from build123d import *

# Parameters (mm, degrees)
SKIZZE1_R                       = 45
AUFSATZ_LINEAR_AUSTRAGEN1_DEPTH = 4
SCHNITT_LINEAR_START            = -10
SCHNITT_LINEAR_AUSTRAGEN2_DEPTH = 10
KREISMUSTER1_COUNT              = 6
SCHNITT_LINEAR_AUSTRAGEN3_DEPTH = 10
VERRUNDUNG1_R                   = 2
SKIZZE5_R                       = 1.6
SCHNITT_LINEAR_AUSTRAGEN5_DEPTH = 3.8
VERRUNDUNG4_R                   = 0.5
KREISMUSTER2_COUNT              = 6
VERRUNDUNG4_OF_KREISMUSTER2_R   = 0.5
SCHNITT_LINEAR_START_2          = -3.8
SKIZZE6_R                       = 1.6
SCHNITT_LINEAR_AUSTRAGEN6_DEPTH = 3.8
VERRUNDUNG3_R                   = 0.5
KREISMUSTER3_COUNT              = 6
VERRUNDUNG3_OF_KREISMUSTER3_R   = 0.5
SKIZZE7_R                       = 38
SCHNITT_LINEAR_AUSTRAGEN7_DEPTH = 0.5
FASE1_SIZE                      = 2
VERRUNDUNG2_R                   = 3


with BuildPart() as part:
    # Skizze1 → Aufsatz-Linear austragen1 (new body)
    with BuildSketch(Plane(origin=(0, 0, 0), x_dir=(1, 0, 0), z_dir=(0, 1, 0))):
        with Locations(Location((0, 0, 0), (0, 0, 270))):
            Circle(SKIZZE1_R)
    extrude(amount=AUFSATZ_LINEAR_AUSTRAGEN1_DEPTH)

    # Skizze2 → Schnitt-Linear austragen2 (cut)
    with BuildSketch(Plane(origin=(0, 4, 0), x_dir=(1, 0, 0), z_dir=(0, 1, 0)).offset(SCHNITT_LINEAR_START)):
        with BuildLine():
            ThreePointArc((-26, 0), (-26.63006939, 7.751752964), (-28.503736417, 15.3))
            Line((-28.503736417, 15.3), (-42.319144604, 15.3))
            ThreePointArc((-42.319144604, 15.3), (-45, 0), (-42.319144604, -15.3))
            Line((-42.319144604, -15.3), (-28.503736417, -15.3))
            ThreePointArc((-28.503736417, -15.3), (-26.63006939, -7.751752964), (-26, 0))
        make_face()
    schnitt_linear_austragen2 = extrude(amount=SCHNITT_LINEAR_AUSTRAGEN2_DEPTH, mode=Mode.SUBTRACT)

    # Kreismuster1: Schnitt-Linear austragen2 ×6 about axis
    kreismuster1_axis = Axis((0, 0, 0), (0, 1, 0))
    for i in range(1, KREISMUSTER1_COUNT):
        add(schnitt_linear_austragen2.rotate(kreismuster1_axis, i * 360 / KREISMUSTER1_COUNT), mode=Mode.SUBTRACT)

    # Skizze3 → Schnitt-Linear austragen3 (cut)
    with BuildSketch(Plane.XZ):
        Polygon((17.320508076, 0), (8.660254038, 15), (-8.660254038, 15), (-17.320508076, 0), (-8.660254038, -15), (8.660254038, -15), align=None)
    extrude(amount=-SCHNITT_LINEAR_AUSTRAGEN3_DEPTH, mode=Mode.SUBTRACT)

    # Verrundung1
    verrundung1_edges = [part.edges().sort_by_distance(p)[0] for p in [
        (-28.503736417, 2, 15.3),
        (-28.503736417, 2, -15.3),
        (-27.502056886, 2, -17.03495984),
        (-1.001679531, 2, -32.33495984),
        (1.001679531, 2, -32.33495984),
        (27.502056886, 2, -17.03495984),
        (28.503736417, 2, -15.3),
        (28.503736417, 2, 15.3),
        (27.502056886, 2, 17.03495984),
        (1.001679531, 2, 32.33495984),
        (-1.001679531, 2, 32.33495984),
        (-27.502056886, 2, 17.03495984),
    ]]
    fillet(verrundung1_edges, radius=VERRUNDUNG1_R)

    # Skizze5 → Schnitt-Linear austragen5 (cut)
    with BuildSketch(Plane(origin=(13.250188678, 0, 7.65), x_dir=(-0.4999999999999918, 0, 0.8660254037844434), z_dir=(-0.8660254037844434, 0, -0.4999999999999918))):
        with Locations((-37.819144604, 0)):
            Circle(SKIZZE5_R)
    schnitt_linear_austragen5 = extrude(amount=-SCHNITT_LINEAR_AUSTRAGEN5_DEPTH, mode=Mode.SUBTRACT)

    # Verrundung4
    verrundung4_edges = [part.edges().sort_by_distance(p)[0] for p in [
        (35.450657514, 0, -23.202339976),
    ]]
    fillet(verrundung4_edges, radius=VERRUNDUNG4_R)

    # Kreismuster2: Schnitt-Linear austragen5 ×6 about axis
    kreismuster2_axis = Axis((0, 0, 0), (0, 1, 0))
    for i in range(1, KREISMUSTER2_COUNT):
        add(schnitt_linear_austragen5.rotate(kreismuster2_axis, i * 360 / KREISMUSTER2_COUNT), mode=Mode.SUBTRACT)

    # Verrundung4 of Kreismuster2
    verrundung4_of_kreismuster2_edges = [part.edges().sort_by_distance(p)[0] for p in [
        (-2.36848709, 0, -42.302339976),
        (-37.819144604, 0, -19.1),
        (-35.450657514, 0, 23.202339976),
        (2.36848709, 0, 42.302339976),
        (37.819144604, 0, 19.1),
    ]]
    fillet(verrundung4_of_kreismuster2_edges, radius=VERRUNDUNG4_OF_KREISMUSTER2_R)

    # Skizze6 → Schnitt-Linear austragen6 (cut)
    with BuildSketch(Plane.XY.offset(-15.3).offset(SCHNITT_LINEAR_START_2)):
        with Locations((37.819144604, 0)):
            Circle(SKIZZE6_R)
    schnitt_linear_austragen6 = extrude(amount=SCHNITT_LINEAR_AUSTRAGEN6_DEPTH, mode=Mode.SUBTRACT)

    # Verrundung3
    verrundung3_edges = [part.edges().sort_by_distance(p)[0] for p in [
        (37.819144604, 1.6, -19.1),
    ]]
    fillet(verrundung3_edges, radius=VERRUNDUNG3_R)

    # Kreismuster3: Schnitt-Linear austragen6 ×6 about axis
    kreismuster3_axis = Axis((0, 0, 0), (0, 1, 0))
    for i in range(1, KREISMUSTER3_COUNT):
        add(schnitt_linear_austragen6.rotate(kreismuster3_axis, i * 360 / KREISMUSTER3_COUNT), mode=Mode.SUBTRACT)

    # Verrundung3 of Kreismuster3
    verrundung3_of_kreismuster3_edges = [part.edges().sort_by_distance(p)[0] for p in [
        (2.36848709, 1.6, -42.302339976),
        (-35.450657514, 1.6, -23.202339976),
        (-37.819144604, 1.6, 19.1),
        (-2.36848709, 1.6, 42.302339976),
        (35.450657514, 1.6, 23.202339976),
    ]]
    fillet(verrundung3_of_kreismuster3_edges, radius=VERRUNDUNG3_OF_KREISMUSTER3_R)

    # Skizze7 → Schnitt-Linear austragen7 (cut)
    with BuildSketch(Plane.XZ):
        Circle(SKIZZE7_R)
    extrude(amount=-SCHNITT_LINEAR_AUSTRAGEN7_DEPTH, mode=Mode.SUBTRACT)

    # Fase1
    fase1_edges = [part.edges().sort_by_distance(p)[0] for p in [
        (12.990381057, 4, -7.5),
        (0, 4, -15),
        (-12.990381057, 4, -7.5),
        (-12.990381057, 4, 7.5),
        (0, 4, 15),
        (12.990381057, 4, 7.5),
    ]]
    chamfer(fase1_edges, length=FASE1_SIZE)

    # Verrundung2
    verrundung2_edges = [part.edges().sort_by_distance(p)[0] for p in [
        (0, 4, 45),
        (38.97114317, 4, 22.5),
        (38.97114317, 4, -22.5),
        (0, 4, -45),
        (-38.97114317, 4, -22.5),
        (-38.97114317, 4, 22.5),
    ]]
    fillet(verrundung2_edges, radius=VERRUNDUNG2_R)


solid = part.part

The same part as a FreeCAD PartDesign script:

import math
import FreeCAD as App
import Part
import Sketcher
from FreeCAD import Vector
Q = App.Units.Quantity


def edges_at(feature, points):
    """Names of the edges that pass closest to the given points."""
    edges = feature.Shape.Edges
    near = lambda p: min(range(len(edges)), key=lambda i: edges[i].distToShape(Part.Vertex(*p))[0])
    return sorted({f"Edge{near(p) + 1}" for p in points})


def add_polygon(sketch, points):
    """Adds a closed chain of lines whose ends are joined by coincident constraints."""
    first, n = sketch.GeometryCount, len(points)
    for a, b in zip(points, points[1:] + points[:1]):
        sketch.addGeometry(Part.LineSegment(App.Vector(*a, 0), App.Vector(*b, 0)), False)
    for i in range(n):
        sketch.addConstraint(Sketcher.Constraint("Coincident", first + i, 2, first + (i + 1) % n, 1))

doc = App.newDocument("Part")
params = doc.addObject("Spreadsheet::Sheet", "Params")
for row, (alias, value) in enumerate([
    ("sketch1_diameter", "90 mm"),
    ("pad1_length", "4 mm"),
    ("sketch2_radius", "48 mm"),
    ("sketch2_radius2", "45 mm"),
    ("pocket1_length", "10 mm"),
    ("pocket2_length", "10 mm"),
    ("fillet_radius", "2 mm"),
    ("sketch4_diameter", "3.2 mm"),
    ("pocket3_length", "3.8 mm"),
    ("fillet2_radius", "0.5 mm"),
    ("fillet3_radius", "0.5 mm"),
    ("sketch5_diameter", "3.2 mm"),
    ("pocket4_length", "3.8 mm"),
    ("fillet4_radius", "0.5 mm"),
    ("fillet5_radius", "0.5 mm"),
    ("sketch6_diameter", "76 mm"),
    ("pocket5_length", "0.5 mm"),
    ("chamfer_size", "2 mm"),
    ("fillet6_radius", "3 mm"),
], start=1):
    params.set(f"A{row}", alias)
    params.set(f"B{row}", "=" + value)
    params.setAlias(f"B{row}", alias)

body = doc.addObject("PartDesign::Body", "Body")

# Sketch on XZ plane
sketch1 = body.newObject("Sketcher::SketchObject", "Sketch")
sketch1.AttachmentSupport = (doc.getObject("XZ_Plane"), [""])
sketch1.MapMode = "FlatFace"
sketch1.addGeometry(Part.Circle(Vector(0, 0, 0), Vector(0, 0, 1), 45), False)
sketch1.addConstraint([
    Sketcher.Constraint("Coincident", 0, 3, -1, 1),
    Sketcher.Constraint("Diameter", 0, Q("90 mm")),
])
sketch1.setExpression("Constraints[1]", "Params.sketch1_diameter")
pad1 = body.newObject("PartDesign::Pad", "Pad")
pad1.Profile = sketch1
pad1.setExpression("Length", "Params.pad1_length")
pad1.Reversed = True

# Sketch on XZ plane
sketch2 = body.newObject("Sketcher::SketchObject", "Sketch001")
sketch2.AttachmentSupport = (doc.getObject("XZ_Plane"), [""])
sketch2.MapMode = "FlatFace"
sketch2.AttachmentOffset = App.Placement(Vector(0, 0, 6), App.Rotation())
sketch2.addGeometry([
    Part.ArcOfCircle(Part.Circle(Vector(-74, 0, 0), Vector(0, 0, 1), 48), math.radians(-18.587347), math.radians(0)),  # 0
    Part.LineSegment(Vector(-28.503736, -15.3, 0), Vector(-42.319145, -15.3, 0)),  # 1
    Part.ArcOfCircle(Part.Circle(Vector(0, 0, 0), Vector(0, 0, 1), 45), math.radians(160.123126), math.radians(199.876874)),  # 2
    Part.LineSegment(Vector(-42.319145, 15.3, 0), Vector(-28.503736, 15.3, 0)),  # 3
    Part.ArcOfCircle(Part.Circle(Vector(-74, 0, 0), Vector(0, 0, 1), 48), math.radians(0), math.radians(18.587347)),  # 4
], False)
sketch2.addConstraint([
    Sketcher.Constraint("Coincident", 0, 1, 1, 1),
    Sketcher.Constraint("Coincident", 1, 2, 2, 2),
    Sketcher.Constraint("Coincident", 2, 1, 3, 1),
    Sketcher.Constraint("Coincident", 3, 2, 4, 2),
    Sketcher.Constraint("Tangent", 4, 1, 0, 2),
    Sketcher.Constraint("Horizontal", 1),
    Sketcher.Constraint("Horizontal", 3),
    Sketcher.Constraint("Coincident", 2, 3, -1, 1),
    Sketcher.Constraint("Equal", 0, 4),
    Sketcher.Constraint("Symmetric", 0, 1, 3, 2, -1),
    Sketcher.Constraint("PointOnObject", 4, 1, -1),
    Sketcher.Constraint("Radius", 0, Q("48 mm")),
    Sketcher.Constraint("Radius", 2, Q("45 mm")),
    Sketcher.Constraint("DistanceX", 0, 3, -1, 1, Q("74 mm")),
    Sketcher.Constraint("DistanceY", 0, 1, -1, 1, Q("15.3 mm")),
])
sketch2.setExpression("Constraints[11]", "Params.sketch2_radius")
sketch2.setExpression("Constraints[12]", "Params.sketch2_radius2")
pocket1 = body.newObject("PartDesign::Pocket", "Pocket")
pocket1.Profile = sketch2
pocket1.setExpression("Length", "Params.pocket1_length")
doc.recompute()

polarpattern = body.newObject("PartDesign::PolarPattern", "PolarPattern")
polarpattern.Originals = [pocket1]
polarpattern.Axis = (doc.getObject("Y_Axis"), [""])
polarpattern.Angle = 360
polarpattern.Occurrences = 6
body.Tip = polarpattern

# Sketch on XZ plane
sketch3 = body.newObject("Sketcher::SketchObject", "Sketch002")
sketch3.AttachmentSupport = (doc.getObject("XZ_Plane"), [""])
sketch3.MapMode = "FlatFace"
add_polygon(sketch3, [(17.320508, 0), (8.660254, 15), (-8.660254, 15), (-17.320508, 0), (-8.660254, -15), (8.660254, -15)])  # lines 0-5
sketch3.addConstraint([
    Sketcher.Constraint("Horizontal", 1),
    Sketcher.Constraint("Horizontal", 4),
    Sketcher.Constraint("Symmetric", 0, 2, 3, 2, -1, 1),
    Sketcher.Constraint("Symmetric", 2, 2, 5, 2, -1, 1),
    Sketcher.Constraint("PointOnObject", 2, 2, -1),
    Sketcher.Constraint("Parallel", 2, 5),
    Sketcher.Constraint("Vertical", 1, 2, 3, 2),
    Sketcher.Constraint("Angle", 0, Q("120 deg")),
    Sketcher.Constraint("DistanceY", -1, 1, 0, 2, Q("15 mm")),
    Sketcher.Constraint("DistanceX", 1, 2, 1, 1, Q("17.320508 mm")),
])
pocket2 = body.newObject("PartDesign::Pocket", "Pocket001")
pocket2.Profile = sketch3
pocket2.setExpression("Length", "Params.pocket2_length")
doc.recompute()

fillet = body.newObject("PartDesign::Fillet", "Fillet")
fillet.Base = (pocket2, edges_at(pocket2, [
    (-28.504, 2, 15.3),
    (-28.504, 2, -15.3),
    (-27.502, 2, -17.035),
    (-1.002, 2, -32.335),
    (1.002, 2, -32.335),
    (27.502, 2, -17.035),
    (28.504, 2, -15.3),
    (28.504, 2, 15.3),
    (27.502, 2, 17.035),
    (1.002, 2, 32.335),
    (-1.002, 2, 32.335),
    (-27.502, 2, 17.035),
]))
fillet.setExpression("Radius", "Params.fillet_radius")

# Sketch on an angled plane
sketch4 = body.newObject("Sketcher::SketchObject", "Sketch003")
sketch4.Placement = App.Placement(Vector(13.250189, 0, 7.65), App.Rotation(Vector(-0.5, 0, 0.866025404), Vector(0, 1, 0), Vector(-0.866025404, 0, -0.5), "ZXY"))
sketch4.addGeometry(Part.Circle(Vector(-37.819145, 0, 0), Vector(0, 0, 1), 1.6), False)
sketch4.addConstraint([
    Sketcher.Constraint("PointOnObject", 0, 3, -1),
    Sketcher.Constraint("Diameter", 0, Q("3.2 mm")),
    Sketcher.Constraint("DistanceX", 0, 3, -1, 1, Q("37.819145 mm")),
])
sketch4.setExpression("Constraints[1]", "Params.sketch4_diameter")
pocket3 = body.newObject("PartDesign::Pocket", "Pocket002")
pocket3.Profile = sketch4
pocket3.setExpression("Length", "Params.pocket3_length")
doc.recompute()

fillet2 = body.newObject("PartDesign::Fillet", "Fillet001")
fillet2.Base = (pocket3, edges_at(pocket3, [(35.451, 0, -23.202)]))
fillet2.setExpression("Radius", "Params.fillet2_radius")
doc.recompute()

polarpattern2 = body.newObject("PartDesign::PolarPattern", "PolarPattern001")
polarpattern2.Originals = [pocket3]
polarpattern2.Axis = (doc.getObject("Y_Axis"), [""])
polarpattern2.Angle = 360
polarpattern2.Occurrences = 6
body.Tip = polarpattern2
doc.recompute()

fillet3 = body.newObject("PartDesign::Fillet", "Fillet002")
fillet3.Base = (polarpattern2, edges_at(polarpattern2, [
    (-2.368, 0, -42.302),
    (-37.819, 0, -19.1),
    (-35.451, 0, 23.202),
    (2.368, 0, 42.302),
    (37.819, 0, 19.1),
]))
fillet3.setExpression("Radius", "Params.fillet3_radius")

# Sketch on XY plane
sketch5 = body.newObject("Sketcher::SketchObject", "Sketch004")
sketch5.AttachmentSupport = (doc.getObject("XY_Plane"), [""])
sketch5.MapMode = "FlatFace"
sketch5.AttachmentOffset = App.Placement(Vector(0, 0, -19.1), App.Rotation())
sketch5.addGeometry(Part.Circle(Vector(37.819145, 0, 0), Vector(0, 0, 1), 1.6), False)
sketch5.addConstraint([
    Sketcher.Constraint("PointOnObject", 0, 3, -1),
    Sketcher.Constraint("Diameter", 0, Q("3.2 mm")),
    Sketcher.Constraint("DistanceX", -1, 1, 0, 3, Q("37.819145 mm")),
])
sketch5.setExpression("Constraints[1]", "Params.sketch5_diameter")
pocket4 = body.newObject("PartDesign::Pocket", "Pocket003")
pocket4.Profile = sketch5
pocket4.setExpression("Length", "Params.pocket4_length")
pocket4.Reversed = True
doc.recompute()

fillet4 = body.newObject("PartDesign::Fillet", "Fillet003")
fillet4.Base = (pocket4, edges_at(pocket4, [(37.819, 1.6, -19.1)]))
fillet4.setExpression("Radius", "Params.fillet4_radius")
doc.recompute()

polarpattern3 = body.newObject("PartDesign::PolarPattern", "PolarPattern002")
polarpattern3.Originals = [pocket4]
polarpattern3.Axis = (doc.getObject("Y_Axis"), [""])
polarpattern3.Angle = 360
polarpattern3.Occurrences = 6
body.Tip = polarpattern3
doc.recompute()

fillet5 = body.newObject("PartDesign::Fillet", "Fillet004")
fillet5.Base = (polarpattern3, edges_at(polarpattern3, [
    (2.368, 1.6, -42.302),
    (-35.451, 1.6, -23.202),
    (-37.819, 1.6, 19.1),
    (-2.368, 1.6, 42.302),
    (35.451, 1.6, 23.202),
]))
fillet5.setExpression("Radius", "Params.fillet5_radius")

# Sketch on XZ plane
sketch6 = body.newObject("Sketcher::SketchObject", "Sketch005")
sketch6.AttachmentSupport = (doc.getObject("XZ_Plane"), [""])
sketch6.MapMode = "FlatFace"
sketch6.addGeometry(Part.Circle(Vector(0, 0, 0), Vector(0, 0, 1), 38), False)
sketch6.addConstraint([
    Sketcher.Constraint("Coincident", 0, 3, -1, 1),
    Sketcher.Constraint("Diameter", 0, Q("76 mm")),
])
sketch6.setExpression("Constraints[1]", "Params.sketch6_diameter")
pocket5 = body.newObject("PartDesign::Pocket", "Pocket004")
pocket5.Profile = sketch6
pocket5.setExpression("Length", "Params.pocket5_length")
doc.recompute()

chamfer = body.newObject("PartDesign::Chamfer", "Chamfer")
chamfer.Base = (pocket5, edges_at(pocket5, [
    (12.99, 4, -7.5),
    (0, 4, -15),
    (-12.99, 4, -7.5),
    (-12.99, 4, 7.5),
    (0, 4, 15),
    (12.99, 4, 7.5),
]))
chamfer.setExpression("Size", "Params.chamfer_size")
doc.recompute()

fillet6 = body.newObject("PartDesign::Fillet", "Fillet005")
fillet6.Base = (chamfer, edges_at(chamfer, [
    (0, 4, 45),
    (38.971, 4, 22.5),
    (38.971, 4, -22.5),
    (0, 4, -45),
    (-38.971, 4, -22.5),
    (-38.971, 4, 22.5),
]))
fillet6.setExpression("Radius", "Params.fillet6_radius")

doc.recompute()
